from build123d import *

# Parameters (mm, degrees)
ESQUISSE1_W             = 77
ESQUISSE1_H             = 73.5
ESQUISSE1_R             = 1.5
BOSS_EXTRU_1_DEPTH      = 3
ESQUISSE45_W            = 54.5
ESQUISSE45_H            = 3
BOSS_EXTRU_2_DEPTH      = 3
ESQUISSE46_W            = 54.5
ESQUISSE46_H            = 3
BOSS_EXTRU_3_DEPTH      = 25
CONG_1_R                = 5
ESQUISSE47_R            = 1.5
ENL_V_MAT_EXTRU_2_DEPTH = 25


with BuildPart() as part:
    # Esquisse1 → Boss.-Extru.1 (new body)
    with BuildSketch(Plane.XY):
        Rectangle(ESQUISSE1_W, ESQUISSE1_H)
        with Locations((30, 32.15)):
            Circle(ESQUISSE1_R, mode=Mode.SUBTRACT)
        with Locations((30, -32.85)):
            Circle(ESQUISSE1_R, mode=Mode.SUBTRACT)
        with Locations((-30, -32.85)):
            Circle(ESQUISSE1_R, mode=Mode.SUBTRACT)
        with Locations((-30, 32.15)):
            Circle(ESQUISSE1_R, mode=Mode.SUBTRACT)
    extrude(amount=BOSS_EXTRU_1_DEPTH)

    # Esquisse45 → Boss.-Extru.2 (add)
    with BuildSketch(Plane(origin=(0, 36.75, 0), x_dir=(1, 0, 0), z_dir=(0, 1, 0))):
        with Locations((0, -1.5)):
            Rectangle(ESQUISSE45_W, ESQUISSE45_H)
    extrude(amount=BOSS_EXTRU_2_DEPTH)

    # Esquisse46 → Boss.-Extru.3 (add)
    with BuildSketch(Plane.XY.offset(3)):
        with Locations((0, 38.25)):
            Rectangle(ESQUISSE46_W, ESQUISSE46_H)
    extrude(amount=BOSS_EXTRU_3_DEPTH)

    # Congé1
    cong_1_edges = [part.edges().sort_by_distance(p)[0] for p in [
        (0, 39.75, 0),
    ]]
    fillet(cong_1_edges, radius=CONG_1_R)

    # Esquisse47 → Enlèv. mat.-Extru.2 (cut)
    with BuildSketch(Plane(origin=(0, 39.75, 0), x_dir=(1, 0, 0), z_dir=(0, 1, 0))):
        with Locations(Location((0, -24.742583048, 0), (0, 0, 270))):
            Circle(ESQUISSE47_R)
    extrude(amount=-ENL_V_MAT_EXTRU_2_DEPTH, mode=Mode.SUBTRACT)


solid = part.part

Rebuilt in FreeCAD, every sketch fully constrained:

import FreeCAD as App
import Part
import Sketcher
from FreeCAD import Vector


def edges_at(feature, points):
    """Names of the edges that pass closest to the given points."""
    edges = feature.Shape.Edges
    near = lambda p: min(range(len(edges)), key=lambda i: edges[i].distToShape(Part.Vertex(*p))[0])
    return sorted({f"Edge{near(p) + 1}" for p in points})

doc = App.newDocument("Part")
body = doc.addObject("PartDesign::Body", "Body")

# Sketch on XY plane
sketch1 = body.newObject("Sketcher::SketchObject", "Sketch")
sketch1.AttachmentSupport = (doc.getObject("XY_Plane"), [""])
sketch1.MapMode = "FlatFace"
sketch1.addGeometry([
    Part.LineSegment(Vector(-38.5, 36.8, 0), Vector(-38.5, -36.8, 0)),  # 0
    Part.LineSegment(Vector(-38.5, -36.8, 0), Vector(38.5, -36.8, 0)),  # 1
    Part.LineSegment(Vector(38.5, -36.8, 0), Vector(38.5, 36.8, 0)),  # 2
    Part.LineSegment(Vector(38.5, 36.8, 0), Vector(-38.5, 36.8, 0)),  # 3
    Part.Circle(Vector(-30, -32.9, 0), Vector(0, 0, 1), 1.5),  # 4
    Part.Circle(Vector(30, -32.9, 0), Vector(0, 0, 1), 1.5),  # 5
    Part.Circle(Vector(-30, 32.1, 0), Vector(0, 0, 1), 1.5),  # 6
    Part.Circle(Vector(30, 32.1, 0), Vector(0, 0, 1), 1.5),  # 7
], False)
sketch1.addConstraint([
    Sketcher.Constraint("Coincident", 0, 2, 1, 1),
    Sketcher.Constraint("Coincident", 1, 2, 2, 1),
    Sketcher.Constraint("Coincident", 2, 2, 3, 1),
    Sketcher.Constraint("Coincident", 3, 2, 0, 1),
    Sketcher.Constraint("Vertical", 0),
    Sketcher.Constraint("Horizontal", 1),
    Sketcher.Constraint("Vertical", 2),
    Sketcher.Constraint("Horizontal", 3),
    Sketcher.Constraint("Equal", 4, 5),
    Sketcher.Constraint("Equal", 5, 6),
    Sketcher.Constraint("Equal", 6, 7),
    Sketcher.Constraint("Symmetric", 0, 2, 2, 2, -1, 1),
    Sketcher.Constraint("Symmetric", 4, 3, 5, 3, -2),
    Sketcher.Constraint("Symmetric", 6, 3, 7, 3, -2),
    Sketcher.Constraint("Vertical", 4, 3, 6, 3),
    Sketcher.Constraint("Diameter", 4, 3.0),
    Sketcher.Constraint("DistanceX", 1, 1, 1, 2, 77.0),
    Sketcher.Constraint("DistanceY", 0, 2, 0, 1, 73.5),
    Sketcher.Constraint("DistanceX", 4, 3, -1, 1, 30.0),
    Sketcher.Constraint("DistanceY", 4, 3, 6, 3, 65.0),
    Sketcher.Constraint("DistanceY", 0, 2, 4, 3, 3.9),
])
pad1 = body.newObject("PartDesign::Pad", "Pad")
pad1.Profile = sketch1
pad1.Length = 3

# Sketch on XZ plane
sketch2 = body.newObject("Sketcher::SketchObject", "Sketch001")
sketch2.AttachmentSupport = (doc.getObject("XZ_Plane"), [""])
sketch2.MapMode = "FlatFace"
sketch2.AttachmentOffset = App.Placement(Vector(0, 0, -36.75), App.Rotation())
sketch2.addGeometry([
    Part.LineSegment(Vector(-27.2, 0, 0), Vector(-27.2, 3, 0)),
    Part.LineSegment(Vector(-27.2, 3, 0), Vector(27.2, 3, 0)),
    Part.LineSegment(Vector(27.2, 3, 0), Vector(27.2, 0, 0)),
    Part.LineSegment(Vector(27.2, 0, 0), Vector(-27.2, 0, 0)),
], False)
sketch2.addConstraint([
    Sketcher.Constraint("Coincident", 0, 2, 1, 1),
    Sketcher.Constraint("Coincident", 1, 2, 2, 1),
    Sketcher.Constraint("Coincident", 2, 2, 3, 1),
    Sketcher.Constraint("Coincident", 3, 2, 0, 1),
    Sketcher.Constraint("Vertical", 0),
    Sketcher.Constraint("Horizontal", 1),
    Sketcher.Constraint("Vertical", 2),
    Sketcher.Constraint("Horizontal", 3),
    Sketcher.Constraint("Symmetric", 2, 2, 3, 2, -1, 1),
    Sketcher.Constraint("DistanceY", 0, 1, 0, 2, 3.0),
    Sketcher.Constraint("DistanceX", 1, 1, 1, 2, 54.5),
])
pad2 = body.newObject("PartDesign::Pad", "Pad001")
pad2.Profile = sketch2
pad2.Length = 3
pad2.Reversed = True

# Sketch on XY plane
sketch3 = body.newObject("Sketcher::SketchObject", "Sketch002")
sketch3.AttachmentSupport = (doc.getObject("XY_Plane"), [""])
sketch3.MapMode = "FlatFace"
sketch3.AttachmentOffset = App.Placement(Vector(0, 0, 3), App.Rotation())
sketch3.addGeometry([
    Part.LineSegment(Vector(-27.2, 39.8, 0), Vector(-27.2, 36.8, 0)),
    Part.LineSegment(Vector(-27.2, 36.8, 0), Vector(27.2, 36.8, 0)),
    Part.LineSegment(Vector(27.2, 36.8, 0), Vector(27.2, 39.8, 0)),
    Part.LineSegment(Vector(27.2, 39.8, 0), Vector(-27.2, 39.8, 0)),
], False)
sketch3.addConstraint([
    Sketcher.Constraint("Coincident", 0, 2, 1, 1),
    Sketcher.Constraint("Coincident", 1, 2, 2, 1),
    Sketcher.Constraint("Coincident", 2, 2, 3, 1),
    Sketcher.Constraint("Coincident", 3, 2, 0, 1),
    Sketcher.Constraint("Vertical", 0),
    Sketcher.Constraint("Horizontal", 1),
    Sketcher.Constraint("Vertical", 2),
    Sketcher.Constraint("Horizontal", 3),
    Sketcher.Constraint("DistanceY", 0, 2, 0, 1, 3.0),
    Sketcher.Constraint("DistanceX", 1, 1, 1, 2, 54.5),
    Sketcher.Constraint("DistanceX", 0, 2, -1, 1, 27.25),
    Sketcher.Constraint("DistanceY", -1, 1, 0, 2, 36.75),
])
pad3 = body.newObject("PartDesign::Pad", "Pad002")
pad3.Profile = sketch3
pad3.Length = 25
doc.recompute()

fillet = body.newObject("PartDesign::Fillet", "Fillet")
fillet.Base = (pad3, edges_at(pad3, [(0, 39.75, 0)]))
fillet.Radius = 5

# Sketch on XZ plane
sketch4 = body.newObject("Sketcher::SketchObject", "Sketch003")
sketch4.AttachmentSupport = (doc.getObject("XZ_Plane"), [""])
sketch4.MapMode = "FlatFace"
sketch4.AttachmentOffset = App.Placement(Vector(0, 0, -39.75), App.Rotation())
sketch4.addGeometry(Part.Circle(Vector(0, 24.7, 0), Vector(0, 0, 1), 1.5), False)
sketch4.addConstraint([
    Sketcher.Constraint("PointOnObject", 0, 3, -2),
    Sketcher.Constraint("Diameter", 0, 3.0),
    Sketcher.Constraint("DistanceY", -1, 1, 0, 3, 24.742583),
])
pocket1 = body.newObject("PartDesign::Pocket", "Pocket")
pocket1.Profile = sketch4
pocket1.Length = 25
pocket1.Reversed = True

doc.recompute()
